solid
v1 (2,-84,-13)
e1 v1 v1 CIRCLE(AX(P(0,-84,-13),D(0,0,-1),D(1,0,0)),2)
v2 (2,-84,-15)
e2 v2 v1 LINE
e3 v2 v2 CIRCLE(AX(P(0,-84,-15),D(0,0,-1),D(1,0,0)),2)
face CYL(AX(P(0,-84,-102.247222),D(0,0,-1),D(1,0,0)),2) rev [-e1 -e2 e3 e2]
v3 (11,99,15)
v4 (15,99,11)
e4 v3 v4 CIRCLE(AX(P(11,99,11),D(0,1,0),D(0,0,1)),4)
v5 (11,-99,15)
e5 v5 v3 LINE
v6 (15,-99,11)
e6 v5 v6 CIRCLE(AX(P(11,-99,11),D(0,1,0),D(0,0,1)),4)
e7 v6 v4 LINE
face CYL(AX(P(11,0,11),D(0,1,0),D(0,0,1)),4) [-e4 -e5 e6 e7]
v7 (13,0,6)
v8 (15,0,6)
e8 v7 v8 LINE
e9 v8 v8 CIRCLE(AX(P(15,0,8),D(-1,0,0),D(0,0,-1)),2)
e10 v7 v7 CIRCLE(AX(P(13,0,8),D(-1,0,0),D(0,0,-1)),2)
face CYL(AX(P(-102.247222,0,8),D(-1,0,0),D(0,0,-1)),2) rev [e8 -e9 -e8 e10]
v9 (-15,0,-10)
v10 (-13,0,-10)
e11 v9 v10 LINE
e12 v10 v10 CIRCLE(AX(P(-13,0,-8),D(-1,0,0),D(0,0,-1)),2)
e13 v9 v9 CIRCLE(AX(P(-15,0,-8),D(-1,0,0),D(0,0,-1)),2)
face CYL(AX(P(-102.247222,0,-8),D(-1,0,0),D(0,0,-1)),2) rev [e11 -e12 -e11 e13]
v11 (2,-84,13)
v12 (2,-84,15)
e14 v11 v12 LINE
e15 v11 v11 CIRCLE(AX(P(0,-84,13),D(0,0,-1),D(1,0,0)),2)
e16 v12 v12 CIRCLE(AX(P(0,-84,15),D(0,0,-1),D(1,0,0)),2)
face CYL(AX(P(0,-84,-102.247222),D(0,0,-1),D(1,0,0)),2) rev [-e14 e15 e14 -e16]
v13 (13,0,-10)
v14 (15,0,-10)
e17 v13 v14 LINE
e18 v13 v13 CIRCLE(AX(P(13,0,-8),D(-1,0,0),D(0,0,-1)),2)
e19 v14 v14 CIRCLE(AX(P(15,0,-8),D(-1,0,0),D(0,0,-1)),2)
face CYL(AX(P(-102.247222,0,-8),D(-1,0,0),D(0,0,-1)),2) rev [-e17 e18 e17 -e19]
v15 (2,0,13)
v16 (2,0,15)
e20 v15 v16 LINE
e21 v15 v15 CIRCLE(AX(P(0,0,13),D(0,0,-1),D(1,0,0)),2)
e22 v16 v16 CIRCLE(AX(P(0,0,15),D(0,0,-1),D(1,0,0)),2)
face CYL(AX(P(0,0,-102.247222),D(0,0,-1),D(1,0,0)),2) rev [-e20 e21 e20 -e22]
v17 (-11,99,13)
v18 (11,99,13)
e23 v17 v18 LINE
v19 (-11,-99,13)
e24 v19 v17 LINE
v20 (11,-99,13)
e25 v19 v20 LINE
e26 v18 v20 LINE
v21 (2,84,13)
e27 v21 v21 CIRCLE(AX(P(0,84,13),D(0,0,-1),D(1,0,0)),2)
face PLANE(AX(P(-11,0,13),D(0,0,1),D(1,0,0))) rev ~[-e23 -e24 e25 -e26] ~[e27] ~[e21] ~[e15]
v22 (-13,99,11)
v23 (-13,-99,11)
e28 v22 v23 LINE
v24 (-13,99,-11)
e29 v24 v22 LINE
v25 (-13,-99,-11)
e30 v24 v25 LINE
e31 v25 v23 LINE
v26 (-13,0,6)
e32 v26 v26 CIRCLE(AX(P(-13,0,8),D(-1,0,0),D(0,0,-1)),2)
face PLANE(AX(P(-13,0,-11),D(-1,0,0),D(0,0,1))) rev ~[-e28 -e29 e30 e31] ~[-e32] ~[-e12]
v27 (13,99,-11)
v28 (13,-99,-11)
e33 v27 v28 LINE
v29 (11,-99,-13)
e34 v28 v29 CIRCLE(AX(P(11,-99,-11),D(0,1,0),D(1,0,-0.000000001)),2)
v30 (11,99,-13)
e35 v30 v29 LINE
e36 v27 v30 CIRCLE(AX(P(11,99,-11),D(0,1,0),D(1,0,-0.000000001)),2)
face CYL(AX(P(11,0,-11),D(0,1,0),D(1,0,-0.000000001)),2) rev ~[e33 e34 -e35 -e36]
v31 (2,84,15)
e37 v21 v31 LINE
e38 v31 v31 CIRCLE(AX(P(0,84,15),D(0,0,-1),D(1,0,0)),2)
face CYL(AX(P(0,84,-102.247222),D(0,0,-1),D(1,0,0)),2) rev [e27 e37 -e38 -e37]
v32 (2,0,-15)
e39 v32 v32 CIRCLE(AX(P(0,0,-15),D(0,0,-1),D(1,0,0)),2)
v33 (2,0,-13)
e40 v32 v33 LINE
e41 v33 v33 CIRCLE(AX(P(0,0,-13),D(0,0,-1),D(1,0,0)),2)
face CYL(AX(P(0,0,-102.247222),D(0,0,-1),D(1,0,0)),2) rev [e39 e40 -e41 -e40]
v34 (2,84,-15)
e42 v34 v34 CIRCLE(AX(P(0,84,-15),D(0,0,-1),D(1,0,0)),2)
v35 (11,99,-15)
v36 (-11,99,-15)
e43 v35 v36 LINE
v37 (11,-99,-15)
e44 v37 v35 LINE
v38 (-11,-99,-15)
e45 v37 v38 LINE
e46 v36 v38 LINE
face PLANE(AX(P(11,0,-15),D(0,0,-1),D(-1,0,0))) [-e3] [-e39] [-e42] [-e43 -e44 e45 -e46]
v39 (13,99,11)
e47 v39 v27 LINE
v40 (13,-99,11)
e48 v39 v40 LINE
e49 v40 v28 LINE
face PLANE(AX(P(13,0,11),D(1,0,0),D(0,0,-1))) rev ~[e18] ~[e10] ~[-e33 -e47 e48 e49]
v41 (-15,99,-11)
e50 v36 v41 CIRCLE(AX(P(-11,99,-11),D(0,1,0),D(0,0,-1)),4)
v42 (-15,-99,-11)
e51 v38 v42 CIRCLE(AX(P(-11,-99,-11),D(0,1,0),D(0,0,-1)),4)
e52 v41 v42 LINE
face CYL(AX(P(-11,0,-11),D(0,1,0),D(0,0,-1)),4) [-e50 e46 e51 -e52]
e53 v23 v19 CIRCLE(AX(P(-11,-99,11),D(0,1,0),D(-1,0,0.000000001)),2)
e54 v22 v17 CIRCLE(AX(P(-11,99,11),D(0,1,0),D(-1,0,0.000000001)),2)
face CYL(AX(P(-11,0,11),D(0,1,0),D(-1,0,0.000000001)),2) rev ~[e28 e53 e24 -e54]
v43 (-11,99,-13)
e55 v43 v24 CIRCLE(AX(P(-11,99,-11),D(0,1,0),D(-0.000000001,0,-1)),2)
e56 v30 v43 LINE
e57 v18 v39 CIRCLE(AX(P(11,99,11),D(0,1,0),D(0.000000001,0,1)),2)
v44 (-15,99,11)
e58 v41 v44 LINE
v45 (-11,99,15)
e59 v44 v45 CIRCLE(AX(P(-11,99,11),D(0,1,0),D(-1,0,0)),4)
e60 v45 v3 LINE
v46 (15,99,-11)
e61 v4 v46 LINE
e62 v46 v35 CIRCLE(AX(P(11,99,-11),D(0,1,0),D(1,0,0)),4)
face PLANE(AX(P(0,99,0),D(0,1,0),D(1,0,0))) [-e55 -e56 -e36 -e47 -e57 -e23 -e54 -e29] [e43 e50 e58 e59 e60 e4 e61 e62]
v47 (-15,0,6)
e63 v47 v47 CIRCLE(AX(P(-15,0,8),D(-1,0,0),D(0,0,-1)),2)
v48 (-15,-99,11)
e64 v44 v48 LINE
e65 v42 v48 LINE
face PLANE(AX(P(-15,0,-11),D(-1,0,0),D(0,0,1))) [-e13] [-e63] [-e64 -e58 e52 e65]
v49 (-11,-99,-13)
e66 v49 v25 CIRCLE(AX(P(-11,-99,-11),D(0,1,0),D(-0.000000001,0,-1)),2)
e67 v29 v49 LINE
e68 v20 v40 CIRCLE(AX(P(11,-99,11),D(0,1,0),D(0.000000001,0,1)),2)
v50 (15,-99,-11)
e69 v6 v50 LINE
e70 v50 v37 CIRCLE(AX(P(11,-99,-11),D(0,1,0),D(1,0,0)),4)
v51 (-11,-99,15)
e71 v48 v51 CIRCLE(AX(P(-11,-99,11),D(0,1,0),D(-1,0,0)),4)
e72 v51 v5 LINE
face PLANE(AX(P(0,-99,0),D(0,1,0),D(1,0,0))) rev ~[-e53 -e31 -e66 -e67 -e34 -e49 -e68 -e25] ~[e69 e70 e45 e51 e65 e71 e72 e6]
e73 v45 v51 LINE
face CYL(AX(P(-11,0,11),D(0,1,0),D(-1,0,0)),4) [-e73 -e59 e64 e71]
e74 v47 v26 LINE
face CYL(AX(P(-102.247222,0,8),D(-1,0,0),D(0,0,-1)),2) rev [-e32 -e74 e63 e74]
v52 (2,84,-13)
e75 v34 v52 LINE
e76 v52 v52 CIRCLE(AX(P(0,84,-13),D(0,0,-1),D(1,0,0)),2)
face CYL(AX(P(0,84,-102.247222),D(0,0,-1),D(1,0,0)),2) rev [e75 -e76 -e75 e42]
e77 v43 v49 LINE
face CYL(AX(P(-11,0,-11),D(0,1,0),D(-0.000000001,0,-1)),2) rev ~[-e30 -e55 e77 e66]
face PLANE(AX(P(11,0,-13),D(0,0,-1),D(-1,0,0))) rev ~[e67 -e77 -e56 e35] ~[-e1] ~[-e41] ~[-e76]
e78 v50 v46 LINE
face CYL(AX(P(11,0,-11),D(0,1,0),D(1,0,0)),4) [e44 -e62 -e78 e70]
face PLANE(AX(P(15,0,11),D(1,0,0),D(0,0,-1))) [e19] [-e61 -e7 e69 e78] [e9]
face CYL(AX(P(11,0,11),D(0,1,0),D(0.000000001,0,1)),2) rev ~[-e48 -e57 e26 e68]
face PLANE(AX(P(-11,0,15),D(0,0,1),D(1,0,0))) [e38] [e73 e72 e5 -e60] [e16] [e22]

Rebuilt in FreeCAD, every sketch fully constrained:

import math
import FreeCAD as App
import Part
import Sketcher

V = App.Vector
Q = App.Units.Quantity

doc = App.newDocument("Part")
body = doc.addObject("PartDesign::Body", "Body")

# Sketch on XZ plane
sketch1 = body.newObject("Sketcher::SketchObject", "Sketch")
sketch1.AttachmentSupport = (doc.getObject("XZ_Plane"), [""])
sketch1.MapMode = "FlatFace"
sketch1.addGeometry([
    Part.LineSegment(V(-11, 15, 0), V(11, 15, 0)),  # 0
    Part.ArcOfCircle(Part.Circle(V(11, 11, 0), V(0, 0, 1), 4), math.radians(0), math.radians(90)),  # 1
    Part.LineSegment(V(15, 11, 0), V(15, -11, 0)),  # 2
    Part.ArcOfCircle(Part.Circle(V(11, -11, 0), V(0, 0, 1), 4), math.radians(-90), math.radians(0)),  # 3
    Part.LineSegment(V(11, -15, 0), V(-11, -15, 0)),  # 4
    Part.ArcOfCircle(Part.Circle(V(-11, -11, 0), V(0, 0, 1), 4), math.radians(180), math.radians(270)),  # 5
    Part.LineSegment(V(-15, -11, 0), V(-15, 11, 0)),  # 6
    Part.ArcOfCircle(Part.Circle(V(-11, 11, 0), V(0, 0, 1), 4), math.radians(90), math.radians(180)),  # 7
    Part.LineSegment(V(11, 13, 0), V(-11, 13, 0)),  # 8
    Part.ArcOfCircle(Part.Circle(V(-11, 11, 0), V(0, 0, 1), 2), math.radians(90), math.radians(180)),  # 9
    Part.LineSegment(V(-13, 11, 0), V(-13, -11, 0)),  # 10
    Part.ArcOfCircle(Part.Circle(V(-11, -11, 0), V(0, 0, 1), 2), math.radians(-180), math.radians(-90)),  # 11
    Part.LineSegment(V(-11, -13, 0), V(11, -13, 0)),  # 12
    Part.ArcOfCircle(Part.Circle(V(11, -11, 0), V(0, 0, 1), 2), math.radians(-90), math.radians(0)),  # 13
    Part.LineSegment(V(13, -11, 0), V(13, 11, 0)),  # 14
    Part.ArcOfCircle(Part.Circle(V(11, 11, 0), V(0, 0, 1), 2), math.radians(0), math.radians(90)),  # 15
], False)
sketch1.addConstraint([
    Sketcher.Constraint("Tangent", 0, 2, 1, 2),
    Sketcher.Constraint("Tangent", 1, 1, 2, 1),
    Sketcher.Constraint("Tangent", 2, 2, 3, 2),
    Sketcher.Constraint("Tangent", 3, 1, 4, 1),
    Sketcher.Constraint("Tangent", 4, 2, 5, 2),
    Sketcher.Constraint("Tangent", 5, 1, 6, 1),
    Sketcher.Constraint("Tangent", 6, 2, 7, 2),
    Sketcher.Constraint("Tangent", 7, 1, 0, 1),
    Sketcher.Constraint("Tangent", 8, 2, 9, 1),
    Sketcher.Constraint("Tangent", 9, 2, 10, 1),
    Sketcher.Constraint("Tangent", 10, 2, 11, 1),
    Sketcher.Constraint("Tangent", 11, 2, 12, 1),
    Sketcher.Constraint("Tangent", 12, 2, 13, 1),
    Sketcher.Constraint("Tangent", 13, 2, 14, 1),
    Sketcher.Constraint("Tangent", 14, 2, 15, 1),
    Sketcher.Constraint("Tangent", 15, 2, 8, 1),
    Sketcher.Constraint("Horizontal", 0),
    Sketcher.Constraint("Vertical", 2),
    Sketcher.Constraint("Horizontal", 4),
    Sketcher.Constraint("Vertical", 6),
    Sketcher.Constraint("Horizontal", 8),
    Sketcher.Constraint("Vertical", 10),
    Sketcher.Constraint("Horizontal", 12),
    Sketcher.Constraint("Vertical", 14),
    Sketcher.Constraint("Coincident", 9, 3, 7, 3),
    Sketcher.Constraint("Coincident", 11, 3, 5, 3),
    Sketcher.Constraint("Coincident", 13, 3, 3, 3),
    Sketcher.Constraint("Equal", 1, 3),
    Sketcher.Constraint("Equal", 3, 5),
    Sketcher.Constraint("Equal", 5, 7),
    Sketcher.Constraint("Equal", 13, 15),
    Sketcher.Constraint("Symmetric", 1, 3, 5, 3, -1, 1),
    Sketcher.Constraint("Equal", 12, 2),
    Sketcher.Constraint("Radius", 1, Q("4 mm")),
    Sketcher.Constraint("Radius", 9, Q("2 mm")),
    Sketcher.Constraint("DistanceX", 0, 1, 0, 2, Q("22 mm")),
])
pad1 = body.newObject("PartDesign::Pad", "Pad")
pad1.Profile = sketch1
pad1.Length = 198
pad1.Midplane = True

# Sketch on YZ plane
sketch2 = body.newObject("Sketcher::SketchObject", "Sketch001")
sketch2.AttachmentSupport = (doc.getObject("YZ_Plane"), [""])
sketch2.MapMode = "FlatFace"
sketch2.addGeometry([
    Part.Circle(V(0, -8, 0), V(0, 0, 1), 2),
    Part.Circle(V(0, 8, 0), V(0, 0, 1), 2),
], False)
sketch2.addConstraint([
    Sketcher.Constraint("Equal", 0, 1),
    Sketcher.Constraint("Symmetric", 0, 3, 1, 3, -1, 1),
    Sketcher.Constraint("PointOnObject", 0, 3, -2),
    Sketcher.Constraint("Diameter", 0, Q("4 mm")),
    Sketcher.Constraint("DistanceY", 0, 3, -1, 1, Q("8 mm")),
])
pocket1 = body.newObject("PartDesign::Pocket", "Pocket")
pocket1.Profile = sketch2
pocket1.Type = "ThroughAll"
pocket1.Midplane = True

# Sketch on XY plane
sketch3 = body.newObject("Sketcher::SketchObject", "Sketch002")
sketch3.AttachmentSupport = (doc.getObject("XY_Plane"), [""])
sketch3.MapMode = "FlatFace"
sketch3.addGeometry([
    Part.Circle(V(0, 84, 0), V(0, 0, 1), 2),
    Part.Circle(V(0, 0, 0), V(0, 0, 1), 2),
    Part.Circle(V(0, -84, 0), V(0, 0, 1), 2),
], False)
sketch3.addConstraint([
    Sketcher.Constraint("Coincident", 1, 3, -1, 1),
    Sketcher.Constraint("Equal", 0, 1),
    Sketcher.Constraint("Equal", 1, 2),
    Sketcher.Constraint("Symmetric", 0, 3, 2, 3, -1, 1),
    Sketcher.Constraint("PointOnObject", 0, 3, -2),
    Sketcher.Constraint("Diameter", 0, Q("4 mm")),
    Sketcher.Constraint("DistanceY", -1, 1, 0, 3, Q("84 mm")),
])
pocket2 = body.newObject("PartDesign::Pocket", "Pocket001")
pocket2.Profile = sketch3
pocket2.Type = "ThroughAll"
pocket2.Midplane = True

doc.recompute()
